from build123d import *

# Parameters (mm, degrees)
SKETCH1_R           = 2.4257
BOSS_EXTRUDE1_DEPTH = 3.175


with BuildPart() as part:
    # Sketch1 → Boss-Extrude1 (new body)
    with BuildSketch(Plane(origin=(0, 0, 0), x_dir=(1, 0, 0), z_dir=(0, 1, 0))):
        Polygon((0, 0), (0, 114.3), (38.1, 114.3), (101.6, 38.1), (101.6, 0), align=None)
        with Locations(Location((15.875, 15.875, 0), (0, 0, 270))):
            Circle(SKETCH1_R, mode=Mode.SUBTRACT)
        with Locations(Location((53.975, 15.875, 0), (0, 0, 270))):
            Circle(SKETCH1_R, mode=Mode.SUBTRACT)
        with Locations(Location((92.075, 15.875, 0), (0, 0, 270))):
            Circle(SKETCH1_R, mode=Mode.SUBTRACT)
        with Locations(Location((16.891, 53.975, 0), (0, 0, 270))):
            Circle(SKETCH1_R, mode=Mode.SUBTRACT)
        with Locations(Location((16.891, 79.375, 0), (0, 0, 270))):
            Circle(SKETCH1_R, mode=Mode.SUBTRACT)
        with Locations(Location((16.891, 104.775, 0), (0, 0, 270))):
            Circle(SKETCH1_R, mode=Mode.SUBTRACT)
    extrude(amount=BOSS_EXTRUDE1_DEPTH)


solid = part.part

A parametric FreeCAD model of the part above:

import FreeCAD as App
import Part
import Sketcher
Q = App.Units.Quantity

doc = App.newDocument("Part")
body = doc.addObject("PartDesign::Body", "Body")

# Sketch on XZ plane
sketch1 = doc.addObject("Sketcher::SketchObject", "Sketch")
body.addObject(sketch1)
sketch1.AttachmentSupport = (doc.XZ_Plane, [""])
sketch1.MapMode = "FlatFace"
sketch1.addGeometry([
    Part.LineSegment(App.Vector(0, -114.3, 0), App.Vector(0, 0, 0)),  # 0
    Part.LineSegment(App.Vector(0, 0, 0), App.Vector(101.6, 0, 0)),  # 1
    Part.LineSegment(App.Vector(101.6, 0, 0), App.Vector(101.6, -38.1, 0)),  # 2
    Part.LineSegment(App.Vector(101.6, -38.1, 0), App.Vector(38.1, -114.3, 0)),  # 3
    Part.LineSegment(App.Vector(38.1, -114.3, 0), App.Vector(0, -114.3, 0)),  # 4
    Part.Circle(App.Vector(92.1, -15.9, 0), App.Vector(0, 0, 1), 2.4),  # 5
    Part.Circle(App.Vector(54, -15.9, 0), App.Vector(0, 0, 1), 2.4),  # 6
    Part.Circle(App.Vector(15.9, -15.9, 0), App.Vector(0, 0, 1), 2.4),  # 7
    Part.Circle(App.Vector(16.9, -54, 0), App.Vector(0, 0, 1), 2.4),  # 8
    Part.Circle(App.Vector(16.9, -79.4, 0), App.Vector(0, 0, 1), 2.4),  # 9
    Part.Circle(App.Vector(16.9, -104.8, 0), App.Vector(0, 0, 1), 2.4),  # 10
], False)
sketch1.addConstraint([
    Sketcher.Constraint("Coincident", 0, 2, 1, 1),
    Sketcher.Constraint("Coincident", 1, 2, 2, 1),
    Sketcher.Constraint("Coincident", 2, 2, 3, 1),
    Sketcher.Constraint("Coincident", 3, 2, 4, 1),
    Sketcher.Constraint("Coincident", 4, 2, 0, 1),
    Sketcher.Constraint("Vertical", 0),
    Sketcher.Constraint("Horizontal", 1),
    Sketcher.Constraint("Vertical", 2),
    Sketcher.Constraint("Horizontal", 4),
    Sketcher.Constraint("Coincident", 0, 2, -1, 1),
    Sketcher.Constraint("Equal", 5, 6),
    Sketcher.Constraint("Equal", 6, 7),
    Sketcher.Constraint("Equal", 7, 8),
    Sketcher.Constraint("Equal", 8, 9),
    Sketcher.Constraint("Equal", 9, 10),
    Sketcher.Constraint("Horizontal", 5, 3, 6, 3),
    Sketcher.Constraint("Horizontal", 6, 3, 7, 3),
    Sketcher.Constraint("Vertical", 8, 3, 9, 3),
    Sketcher.Constraint("Vertical", 9, 3, 10, 3),
    Sketcher.Constraint("Equal", 4, 2),
    Sketcher.Constraint("DistanceX", 1, 1, 1, 2, Q("4 in")),
    Sketcher.Constraint("Diameter", 5, Q("0.191 in")),
    Sketcher.Constraint("DistanceX", 4, 2, 4, 1, Q("1.5 in")),
    Sketcher.Constraint("DistanceY", 0, 1, 0, 2, Q("4.5 in")),
    Sketcher.Constraint("DistanceX", 7, 3, 5, 3, Q("3 in")),
    Sketcher.Constraint("DistanceY", 9, 3, 8, 3, Q("1 in")),
    Sketcher.Constraint("DistanceY", 10, 3, 9, 3, Q("1 in")),
    Sketcher.Constraint("DistanceX", 6, 3, 5, 3, Q("1.5 in")),
    Sketcher.Constraint("DistanceY", 8, 3, 7, 3, Q("1.5 in")),
    Sketcher.Constraint("DistanceX", 7, 3, 8, 3, Q("0.04 in")),
    Sketcher.Constraint("DistanceX", -1, 1, 5, 3, Q("3.625 in")),
    Sketcher.Constraint("DistanceY", 5, 3, -1, 1, Q("0.625 in")),
])
pad1 = doc.addObject("PartDesign::Pad", "Pad")
body.addObject(pad1)
pad1.Profile = sketch1
pad1.Length = Q("0.125 in")
pad1.Reversed = True

doc.recompute()
